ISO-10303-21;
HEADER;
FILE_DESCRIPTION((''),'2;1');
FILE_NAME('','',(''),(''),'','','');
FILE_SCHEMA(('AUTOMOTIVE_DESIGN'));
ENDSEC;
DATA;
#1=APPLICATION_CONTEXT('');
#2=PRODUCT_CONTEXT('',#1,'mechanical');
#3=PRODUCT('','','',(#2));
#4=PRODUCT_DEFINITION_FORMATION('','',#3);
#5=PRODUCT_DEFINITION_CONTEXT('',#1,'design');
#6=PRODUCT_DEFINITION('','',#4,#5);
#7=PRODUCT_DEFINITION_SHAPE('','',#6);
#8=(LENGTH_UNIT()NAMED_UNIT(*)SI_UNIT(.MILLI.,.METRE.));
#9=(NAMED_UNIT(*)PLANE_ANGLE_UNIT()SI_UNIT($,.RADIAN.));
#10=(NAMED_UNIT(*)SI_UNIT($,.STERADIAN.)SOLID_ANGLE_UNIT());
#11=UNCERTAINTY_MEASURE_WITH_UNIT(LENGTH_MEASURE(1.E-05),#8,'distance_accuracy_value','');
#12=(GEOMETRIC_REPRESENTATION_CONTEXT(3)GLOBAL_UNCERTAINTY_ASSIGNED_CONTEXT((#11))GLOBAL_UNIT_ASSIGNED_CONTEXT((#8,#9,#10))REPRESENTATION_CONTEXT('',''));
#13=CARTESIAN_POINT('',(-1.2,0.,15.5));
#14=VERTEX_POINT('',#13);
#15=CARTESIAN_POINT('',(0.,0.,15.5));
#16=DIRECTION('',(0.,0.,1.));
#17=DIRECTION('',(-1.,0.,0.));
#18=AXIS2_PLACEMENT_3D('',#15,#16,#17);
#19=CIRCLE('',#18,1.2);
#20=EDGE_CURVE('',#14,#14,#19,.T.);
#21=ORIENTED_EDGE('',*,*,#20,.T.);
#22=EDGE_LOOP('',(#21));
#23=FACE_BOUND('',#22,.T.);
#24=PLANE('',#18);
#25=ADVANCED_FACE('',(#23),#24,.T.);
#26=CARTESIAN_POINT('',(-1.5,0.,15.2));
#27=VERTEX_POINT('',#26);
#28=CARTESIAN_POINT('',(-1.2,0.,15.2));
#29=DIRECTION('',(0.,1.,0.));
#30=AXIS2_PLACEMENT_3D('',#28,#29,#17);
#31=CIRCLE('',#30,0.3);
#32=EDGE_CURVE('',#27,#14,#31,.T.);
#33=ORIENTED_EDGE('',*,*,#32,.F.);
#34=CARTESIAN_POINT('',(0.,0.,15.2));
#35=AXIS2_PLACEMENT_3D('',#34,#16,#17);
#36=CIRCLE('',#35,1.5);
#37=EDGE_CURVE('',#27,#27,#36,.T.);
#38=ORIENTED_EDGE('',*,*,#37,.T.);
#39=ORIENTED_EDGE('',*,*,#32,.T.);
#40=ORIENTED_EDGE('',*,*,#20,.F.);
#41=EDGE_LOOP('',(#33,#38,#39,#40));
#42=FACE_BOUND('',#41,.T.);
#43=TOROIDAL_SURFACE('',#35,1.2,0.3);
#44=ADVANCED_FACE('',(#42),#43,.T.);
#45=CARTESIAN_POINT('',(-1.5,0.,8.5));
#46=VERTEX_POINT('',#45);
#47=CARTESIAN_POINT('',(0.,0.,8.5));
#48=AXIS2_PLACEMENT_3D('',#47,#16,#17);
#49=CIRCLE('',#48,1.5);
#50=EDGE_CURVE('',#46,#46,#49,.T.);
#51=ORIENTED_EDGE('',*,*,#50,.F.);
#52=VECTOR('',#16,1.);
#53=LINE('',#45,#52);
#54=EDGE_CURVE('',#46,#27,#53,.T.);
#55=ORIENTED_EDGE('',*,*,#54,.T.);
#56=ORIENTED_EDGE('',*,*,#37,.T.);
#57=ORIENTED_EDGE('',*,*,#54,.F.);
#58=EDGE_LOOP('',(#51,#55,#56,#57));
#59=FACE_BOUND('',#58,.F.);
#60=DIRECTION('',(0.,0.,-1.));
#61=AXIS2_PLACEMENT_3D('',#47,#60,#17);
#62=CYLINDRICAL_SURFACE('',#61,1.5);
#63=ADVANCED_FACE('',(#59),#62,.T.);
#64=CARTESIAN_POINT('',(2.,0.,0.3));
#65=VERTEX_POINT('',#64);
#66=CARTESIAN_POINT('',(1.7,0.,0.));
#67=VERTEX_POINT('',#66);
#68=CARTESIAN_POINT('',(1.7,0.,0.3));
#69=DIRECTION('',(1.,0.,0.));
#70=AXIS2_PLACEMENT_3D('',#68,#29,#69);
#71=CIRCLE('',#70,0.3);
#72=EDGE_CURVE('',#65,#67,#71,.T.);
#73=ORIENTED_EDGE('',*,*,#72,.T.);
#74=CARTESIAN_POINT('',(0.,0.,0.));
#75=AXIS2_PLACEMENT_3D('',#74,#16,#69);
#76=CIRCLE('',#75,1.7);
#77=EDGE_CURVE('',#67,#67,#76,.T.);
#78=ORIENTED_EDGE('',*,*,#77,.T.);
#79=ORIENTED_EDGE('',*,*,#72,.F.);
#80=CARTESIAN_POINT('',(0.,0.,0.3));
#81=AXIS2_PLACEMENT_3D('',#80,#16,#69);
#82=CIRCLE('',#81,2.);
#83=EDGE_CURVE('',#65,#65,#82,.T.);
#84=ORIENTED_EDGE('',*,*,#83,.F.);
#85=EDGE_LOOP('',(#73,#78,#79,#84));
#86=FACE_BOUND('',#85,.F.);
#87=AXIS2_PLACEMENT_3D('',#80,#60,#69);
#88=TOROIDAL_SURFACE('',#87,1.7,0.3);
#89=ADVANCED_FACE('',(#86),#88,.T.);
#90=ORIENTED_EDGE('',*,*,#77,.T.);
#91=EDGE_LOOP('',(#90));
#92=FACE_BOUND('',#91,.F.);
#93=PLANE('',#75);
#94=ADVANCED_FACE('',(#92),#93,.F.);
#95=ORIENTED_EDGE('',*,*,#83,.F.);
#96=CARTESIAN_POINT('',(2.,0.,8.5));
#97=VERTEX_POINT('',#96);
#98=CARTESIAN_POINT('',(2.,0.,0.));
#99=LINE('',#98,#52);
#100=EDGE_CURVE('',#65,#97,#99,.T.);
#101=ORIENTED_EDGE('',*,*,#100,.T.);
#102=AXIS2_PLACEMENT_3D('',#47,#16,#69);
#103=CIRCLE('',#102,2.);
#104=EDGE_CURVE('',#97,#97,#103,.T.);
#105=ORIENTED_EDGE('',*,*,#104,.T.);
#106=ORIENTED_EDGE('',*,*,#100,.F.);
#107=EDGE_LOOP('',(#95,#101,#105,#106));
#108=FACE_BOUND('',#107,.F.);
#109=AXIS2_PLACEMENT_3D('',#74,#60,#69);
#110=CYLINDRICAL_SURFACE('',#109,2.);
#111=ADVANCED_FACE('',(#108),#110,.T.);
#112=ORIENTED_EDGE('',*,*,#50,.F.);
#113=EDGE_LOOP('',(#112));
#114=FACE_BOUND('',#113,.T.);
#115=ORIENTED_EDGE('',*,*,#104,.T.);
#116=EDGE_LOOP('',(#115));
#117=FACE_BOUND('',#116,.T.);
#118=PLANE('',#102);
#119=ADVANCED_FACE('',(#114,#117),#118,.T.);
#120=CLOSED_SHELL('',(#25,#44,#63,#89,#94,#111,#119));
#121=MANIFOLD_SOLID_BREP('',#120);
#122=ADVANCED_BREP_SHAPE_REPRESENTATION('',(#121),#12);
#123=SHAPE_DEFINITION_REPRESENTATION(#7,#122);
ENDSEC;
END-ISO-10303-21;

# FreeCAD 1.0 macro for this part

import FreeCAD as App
import Part
import Sketcher
from FreeCAD import Vector


def edges_at(feature, points):
    """Names of the edges that pass closest to the given points."""
    edges = feature.Shape.Edges
    near = lambda p: min(range(len(edges)), key=lambda i: edges[i].distToShape(Part.Vertex(*p))[0])
    return sorted({f"Edge{near(p) + 1}" for p in points})

doc = App.newDocument("Part")
params = doc.addObject("Spreadsheet::Sheet", "Params")
for row, (alias, value) in enumerate([
    ("sketch1_diameter", "4 mm"),
    ("pad1_length", "8.5 mm"),
    ("sketch2_diameter", "3 mm"),
    ("pad2_length", "7 mm"),
    ("fillet_radius", "0.3 mm"),
    ("fillet2_radius", "0.3 mm"),
], start=1):
    params.set(f"A{row}", alias)
    params.set(f"B{row}", "=" + value)
    params.setAlias(f"B{row}", alias)

body = doc.addObject("PartDesign::Body", "Body")

# Sketch on XY plane
sketch1 = body.newObject("Sketcher::SketchObject", "Sketch")
sketch1.AttachmentSupport = (doc.getObject("XY_Plane"), [""])
sketch1.MapMode = "FlatFace"
sketch1.addGeometry(Part.Circle(Vector(0, 0, 0), Vector(0, 0, 1), 2), False)
sketch1.addConstraint([
    Sketcher.Constraint("Coincident", 0, 3, -1, 1),
    Sketcher.Constraint("Diameter", 0, 4.0),
])
sketch1.setExpression("Constraints[1]", "Params.sketch1_diameter")
pad1 = body.newObject("PartDesign::Pad", "Pad")
pad1.Profile = sketch1
pad1.setExpression("Length", "Params.pad1_length")

# Sketch on XY plane
sketch2 = body.newObject("Sketcher::SketchObject", "Sketch001")
sketch2.AttachmentSupport = (doc.getObject("XY_Plane"), [""])
sketch2.MapMode = "FlatFace"
sketch2.AttachmentOffset = App.Placement(Vector(0, 0, 8.5), App.Rotation())
sketch2.addGeometry(Part.Circle(Vector(0, 0, 0), Vector(0, 0, 1), 1.5), False)
sketch2.addConstraint([
    Sketcher.Constraint("Coincident", 0, 3, -1, 1),
    Sketcher.Constraint("Diameter", 0, 3.0),
])
sketch2.setExpression("Constraints[1]", "Params.sketch2_diameter")
pad2 = body.newObject("PartDesign::Pad", "Pad001")
pad2.Profile = sketch2
pad2.setExpression("Length", "Params.pad2_length")
doc.recompute()

fillet = body.newObject("PartDesign::Fillet", "Fillet")
fillet.Base = (pad2, edges_at(pad2, [(1.399, 0.542, 15.5)]))
fillet.setExpression("Radius", "Params.fillet_radius")
doc.recompute()

fillet2 = body.newObject("PartDesign::Fillet", "Fillet001")
fillet2.Base = (fillet, edges_at(fillet, [(-1.865, -0.723, 0)]))
fillet2.setExpression("Radius", "Params.fillet2_radius")

doc.recompute()
